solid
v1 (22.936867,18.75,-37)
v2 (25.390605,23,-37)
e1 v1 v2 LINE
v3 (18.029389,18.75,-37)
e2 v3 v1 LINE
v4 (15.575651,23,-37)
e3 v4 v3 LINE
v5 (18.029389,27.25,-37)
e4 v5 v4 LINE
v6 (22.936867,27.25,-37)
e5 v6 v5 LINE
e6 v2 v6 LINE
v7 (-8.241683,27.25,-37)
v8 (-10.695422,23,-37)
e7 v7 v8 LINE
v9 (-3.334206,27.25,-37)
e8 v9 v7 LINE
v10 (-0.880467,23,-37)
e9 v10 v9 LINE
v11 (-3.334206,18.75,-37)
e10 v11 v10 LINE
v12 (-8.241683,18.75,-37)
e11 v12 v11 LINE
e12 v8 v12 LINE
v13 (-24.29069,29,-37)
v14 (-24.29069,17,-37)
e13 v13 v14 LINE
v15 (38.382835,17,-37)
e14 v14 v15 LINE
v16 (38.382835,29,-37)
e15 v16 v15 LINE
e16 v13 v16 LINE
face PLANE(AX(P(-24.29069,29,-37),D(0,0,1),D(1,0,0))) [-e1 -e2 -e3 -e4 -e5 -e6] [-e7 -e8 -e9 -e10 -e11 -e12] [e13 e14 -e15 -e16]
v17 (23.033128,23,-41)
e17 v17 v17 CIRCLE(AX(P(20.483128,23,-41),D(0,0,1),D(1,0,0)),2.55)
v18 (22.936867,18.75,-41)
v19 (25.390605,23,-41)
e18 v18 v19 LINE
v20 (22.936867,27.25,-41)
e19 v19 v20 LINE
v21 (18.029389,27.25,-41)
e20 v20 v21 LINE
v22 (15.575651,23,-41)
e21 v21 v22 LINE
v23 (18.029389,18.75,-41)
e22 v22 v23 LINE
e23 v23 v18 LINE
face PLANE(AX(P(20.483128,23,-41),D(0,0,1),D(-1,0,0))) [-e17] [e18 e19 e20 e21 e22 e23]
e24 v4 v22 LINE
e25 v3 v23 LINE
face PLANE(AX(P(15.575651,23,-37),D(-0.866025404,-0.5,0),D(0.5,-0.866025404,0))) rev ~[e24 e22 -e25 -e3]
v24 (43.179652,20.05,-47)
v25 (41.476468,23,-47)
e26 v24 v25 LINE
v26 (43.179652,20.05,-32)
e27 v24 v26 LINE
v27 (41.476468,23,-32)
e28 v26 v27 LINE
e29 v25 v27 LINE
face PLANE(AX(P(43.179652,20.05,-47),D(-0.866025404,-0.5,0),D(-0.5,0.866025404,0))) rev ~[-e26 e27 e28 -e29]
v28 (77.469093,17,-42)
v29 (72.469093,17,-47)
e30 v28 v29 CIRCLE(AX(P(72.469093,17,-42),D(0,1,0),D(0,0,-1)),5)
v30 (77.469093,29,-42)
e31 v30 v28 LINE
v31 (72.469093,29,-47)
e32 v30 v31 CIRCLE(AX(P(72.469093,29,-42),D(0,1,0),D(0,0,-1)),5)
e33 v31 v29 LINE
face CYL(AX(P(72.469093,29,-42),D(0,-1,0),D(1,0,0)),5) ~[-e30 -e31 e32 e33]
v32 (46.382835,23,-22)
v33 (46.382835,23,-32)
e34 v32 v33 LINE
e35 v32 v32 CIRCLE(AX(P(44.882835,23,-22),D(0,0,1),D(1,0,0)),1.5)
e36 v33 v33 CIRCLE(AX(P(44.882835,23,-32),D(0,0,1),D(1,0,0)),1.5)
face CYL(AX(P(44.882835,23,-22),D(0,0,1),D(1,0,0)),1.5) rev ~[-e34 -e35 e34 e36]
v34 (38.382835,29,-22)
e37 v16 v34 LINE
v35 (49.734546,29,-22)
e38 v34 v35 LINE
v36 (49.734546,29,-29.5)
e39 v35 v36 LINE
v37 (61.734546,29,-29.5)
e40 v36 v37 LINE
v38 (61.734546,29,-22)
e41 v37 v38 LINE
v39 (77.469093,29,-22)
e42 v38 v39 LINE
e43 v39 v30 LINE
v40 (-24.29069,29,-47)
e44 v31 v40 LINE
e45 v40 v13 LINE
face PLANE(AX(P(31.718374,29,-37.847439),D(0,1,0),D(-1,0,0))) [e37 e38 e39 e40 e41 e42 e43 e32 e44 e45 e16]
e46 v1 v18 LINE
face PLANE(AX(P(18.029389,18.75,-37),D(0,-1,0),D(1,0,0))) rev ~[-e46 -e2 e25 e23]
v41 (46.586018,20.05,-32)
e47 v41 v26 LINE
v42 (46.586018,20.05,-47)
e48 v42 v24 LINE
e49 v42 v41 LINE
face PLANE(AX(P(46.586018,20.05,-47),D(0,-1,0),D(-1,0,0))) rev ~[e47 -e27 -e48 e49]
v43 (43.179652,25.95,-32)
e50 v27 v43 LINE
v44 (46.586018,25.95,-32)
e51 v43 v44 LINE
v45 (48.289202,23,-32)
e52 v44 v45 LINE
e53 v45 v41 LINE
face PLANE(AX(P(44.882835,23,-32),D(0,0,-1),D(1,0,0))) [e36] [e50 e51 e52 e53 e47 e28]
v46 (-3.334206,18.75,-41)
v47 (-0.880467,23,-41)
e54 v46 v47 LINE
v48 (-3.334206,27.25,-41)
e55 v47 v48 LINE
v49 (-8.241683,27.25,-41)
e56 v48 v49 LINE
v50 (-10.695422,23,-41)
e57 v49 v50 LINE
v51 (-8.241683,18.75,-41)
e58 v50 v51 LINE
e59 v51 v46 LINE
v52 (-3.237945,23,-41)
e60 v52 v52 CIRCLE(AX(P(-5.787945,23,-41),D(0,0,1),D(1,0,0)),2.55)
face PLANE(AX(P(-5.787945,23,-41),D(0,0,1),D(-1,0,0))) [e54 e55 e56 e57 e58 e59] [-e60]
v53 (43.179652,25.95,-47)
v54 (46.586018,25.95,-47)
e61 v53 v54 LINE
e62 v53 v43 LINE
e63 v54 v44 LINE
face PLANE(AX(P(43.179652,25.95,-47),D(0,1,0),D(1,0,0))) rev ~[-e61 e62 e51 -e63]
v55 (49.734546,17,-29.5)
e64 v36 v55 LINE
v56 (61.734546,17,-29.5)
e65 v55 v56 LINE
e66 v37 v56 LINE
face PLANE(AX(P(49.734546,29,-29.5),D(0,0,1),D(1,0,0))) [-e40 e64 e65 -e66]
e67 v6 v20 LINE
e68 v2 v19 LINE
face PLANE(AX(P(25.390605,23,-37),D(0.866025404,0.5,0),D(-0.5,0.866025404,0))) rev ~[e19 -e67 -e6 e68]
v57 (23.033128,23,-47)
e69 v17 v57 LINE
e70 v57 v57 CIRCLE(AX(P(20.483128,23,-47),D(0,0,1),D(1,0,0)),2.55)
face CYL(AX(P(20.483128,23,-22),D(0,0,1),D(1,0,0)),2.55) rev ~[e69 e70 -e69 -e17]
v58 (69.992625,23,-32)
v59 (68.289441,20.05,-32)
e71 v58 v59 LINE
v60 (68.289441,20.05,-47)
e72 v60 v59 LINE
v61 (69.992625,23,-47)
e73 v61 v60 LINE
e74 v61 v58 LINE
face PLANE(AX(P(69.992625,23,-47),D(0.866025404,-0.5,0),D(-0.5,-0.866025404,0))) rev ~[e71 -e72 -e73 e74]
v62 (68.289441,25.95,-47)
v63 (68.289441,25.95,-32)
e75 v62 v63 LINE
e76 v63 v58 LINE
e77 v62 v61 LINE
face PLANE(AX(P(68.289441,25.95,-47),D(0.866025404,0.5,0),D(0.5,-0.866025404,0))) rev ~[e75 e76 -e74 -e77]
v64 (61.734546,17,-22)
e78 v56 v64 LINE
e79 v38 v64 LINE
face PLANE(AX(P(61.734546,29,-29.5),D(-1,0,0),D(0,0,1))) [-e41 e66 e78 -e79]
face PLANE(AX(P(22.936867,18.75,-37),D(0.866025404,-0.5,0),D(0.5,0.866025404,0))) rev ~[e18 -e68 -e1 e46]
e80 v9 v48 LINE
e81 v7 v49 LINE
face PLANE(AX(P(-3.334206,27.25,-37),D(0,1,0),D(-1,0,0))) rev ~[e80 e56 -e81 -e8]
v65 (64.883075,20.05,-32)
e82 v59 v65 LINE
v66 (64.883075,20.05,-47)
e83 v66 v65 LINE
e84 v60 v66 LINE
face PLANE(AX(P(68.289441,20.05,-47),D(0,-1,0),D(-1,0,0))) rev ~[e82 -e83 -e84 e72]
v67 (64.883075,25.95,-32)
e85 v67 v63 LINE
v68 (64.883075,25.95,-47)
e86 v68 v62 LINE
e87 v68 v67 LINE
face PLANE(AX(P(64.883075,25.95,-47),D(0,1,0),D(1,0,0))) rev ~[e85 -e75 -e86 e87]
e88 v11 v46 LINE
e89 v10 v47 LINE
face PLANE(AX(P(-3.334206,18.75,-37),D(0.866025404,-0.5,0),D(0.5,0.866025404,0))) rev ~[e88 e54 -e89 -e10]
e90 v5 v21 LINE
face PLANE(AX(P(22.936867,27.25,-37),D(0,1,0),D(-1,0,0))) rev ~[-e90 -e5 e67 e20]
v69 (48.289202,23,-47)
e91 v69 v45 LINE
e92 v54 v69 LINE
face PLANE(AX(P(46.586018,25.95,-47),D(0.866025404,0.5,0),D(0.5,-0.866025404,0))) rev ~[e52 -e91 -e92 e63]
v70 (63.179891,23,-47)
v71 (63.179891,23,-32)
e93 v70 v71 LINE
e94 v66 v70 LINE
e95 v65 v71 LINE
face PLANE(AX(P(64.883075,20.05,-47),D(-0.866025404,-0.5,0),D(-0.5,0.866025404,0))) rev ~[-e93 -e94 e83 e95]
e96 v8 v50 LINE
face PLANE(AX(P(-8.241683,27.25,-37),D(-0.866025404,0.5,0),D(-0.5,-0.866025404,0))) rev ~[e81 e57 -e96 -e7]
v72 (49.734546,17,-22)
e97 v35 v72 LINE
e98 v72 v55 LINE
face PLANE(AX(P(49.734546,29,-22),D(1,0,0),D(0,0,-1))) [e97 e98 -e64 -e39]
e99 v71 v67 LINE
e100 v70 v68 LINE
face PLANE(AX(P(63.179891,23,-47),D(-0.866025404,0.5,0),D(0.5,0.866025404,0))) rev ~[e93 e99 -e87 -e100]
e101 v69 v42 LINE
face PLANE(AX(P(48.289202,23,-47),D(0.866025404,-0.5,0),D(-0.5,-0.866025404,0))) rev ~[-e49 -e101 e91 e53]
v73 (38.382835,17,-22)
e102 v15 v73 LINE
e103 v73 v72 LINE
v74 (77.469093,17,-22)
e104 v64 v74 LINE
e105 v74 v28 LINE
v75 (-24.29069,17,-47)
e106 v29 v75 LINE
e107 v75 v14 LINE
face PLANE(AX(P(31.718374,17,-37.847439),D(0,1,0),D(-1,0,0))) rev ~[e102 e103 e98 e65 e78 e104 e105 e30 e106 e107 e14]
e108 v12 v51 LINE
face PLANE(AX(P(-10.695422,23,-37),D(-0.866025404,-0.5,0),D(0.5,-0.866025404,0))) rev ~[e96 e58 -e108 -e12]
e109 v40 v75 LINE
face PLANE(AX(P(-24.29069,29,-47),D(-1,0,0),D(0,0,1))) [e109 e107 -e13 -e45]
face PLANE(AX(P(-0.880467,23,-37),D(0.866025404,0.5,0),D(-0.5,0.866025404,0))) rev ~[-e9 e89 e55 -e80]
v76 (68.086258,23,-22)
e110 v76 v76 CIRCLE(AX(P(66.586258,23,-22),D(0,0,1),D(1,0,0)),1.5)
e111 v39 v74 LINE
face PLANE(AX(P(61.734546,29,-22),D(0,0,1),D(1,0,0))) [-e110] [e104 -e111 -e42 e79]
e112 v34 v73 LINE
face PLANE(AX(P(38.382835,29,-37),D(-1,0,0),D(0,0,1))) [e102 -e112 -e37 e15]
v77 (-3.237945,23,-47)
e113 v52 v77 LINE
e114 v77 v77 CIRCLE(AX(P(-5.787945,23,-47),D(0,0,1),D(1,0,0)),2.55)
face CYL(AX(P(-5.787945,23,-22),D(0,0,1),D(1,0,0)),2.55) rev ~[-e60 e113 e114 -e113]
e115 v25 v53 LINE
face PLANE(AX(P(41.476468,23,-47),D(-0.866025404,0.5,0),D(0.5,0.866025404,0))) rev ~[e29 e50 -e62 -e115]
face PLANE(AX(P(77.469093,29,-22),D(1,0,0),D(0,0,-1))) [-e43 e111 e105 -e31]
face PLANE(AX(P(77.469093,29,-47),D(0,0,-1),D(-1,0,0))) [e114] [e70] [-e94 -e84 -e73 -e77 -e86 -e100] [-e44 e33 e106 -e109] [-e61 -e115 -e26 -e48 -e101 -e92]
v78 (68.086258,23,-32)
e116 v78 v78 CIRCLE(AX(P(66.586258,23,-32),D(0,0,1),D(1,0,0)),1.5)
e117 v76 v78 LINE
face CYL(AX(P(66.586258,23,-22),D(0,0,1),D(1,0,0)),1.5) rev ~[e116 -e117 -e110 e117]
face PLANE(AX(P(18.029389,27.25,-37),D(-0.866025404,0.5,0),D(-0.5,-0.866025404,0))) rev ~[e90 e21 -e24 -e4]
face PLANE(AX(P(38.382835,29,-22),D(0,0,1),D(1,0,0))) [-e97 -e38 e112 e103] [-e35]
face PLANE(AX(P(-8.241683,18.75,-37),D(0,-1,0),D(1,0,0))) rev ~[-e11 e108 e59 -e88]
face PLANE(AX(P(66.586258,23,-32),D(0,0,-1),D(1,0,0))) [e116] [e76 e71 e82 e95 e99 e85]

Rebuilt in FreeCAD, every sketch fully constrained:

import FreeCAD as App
import Part
import Sketcher
from FreeCAD import Vector
Q = App.Units.Quantity


def edges_at(feature, points):
    """Names of the edges that pass closest to the given points."""
    edges = feature.Shape.Edges
    near = lambda p: min(range(len(edges)), key=lambda i: edges[i].distToShape(Part.Vertex(*p))[0])
    return sorted({f"Edge{near(p) + 1}" for p in points})


def add_polygon(sketch, points):
    """Adds a closed chain of lines whose ends are joined by coincident constraints."""
    first, n = sketch.GeometryCount, len(points)
    for a, b in zip(points, points[1:] + points[:1]):
        sketch.addGeometry(Part.LineSegment(App.Vector(*a, 0), App.Vector(*b, 0)), False)
    for i in range(n):
        sketch.addConstraint(Sketcher.Constraint("Coincident", first + i, 2, first + (i + 1) % n, 1))

doc = App.newDocument("Part")
body = doc.addObject("PartDesign::Body", "Body")

sketch1 = body.newObject("Sketcher::SketchObject", "Sketch")
sketch1.AttachmentSupport = (doc.getObject("XZ_Plane"), [""])
sketch1.MapMode = "FlatFace"
add_polygon(sketch1, [(77, -25), (77, 0), (62, 0), (62, -8), (50, -8), (50, 0), (38, 0), (38, -15), (-24, -15), (-24, -25)])
sketch1.addConstraint([
    Sketcher.Constraint("Vertical", 0),
    Sketcher.Constraint("Horizontal", 1),
    Sketcher.Constraint("Vertical", 2),
    Sketcher.Constraint("Horizontal", 3),
    Sketcher.Constraint("Vertical", 4),
    Sketcher.Constraint("Horizontal", 5),
    Sketcher.Constraint("Vertical", 6),
    Sketcher.Constraint("Horizontal", 7),
    Sketcher.Constraint("Vertical", 8),
    Sketcher.Constraint("Horizontal", 9),
    Sketcher.Constraint("PointOnObject", 0, 2, -1),
    Sketcher.Constraint("PointOnObject", 4, 2, -1),
    Sketcher.Constraint("DistanceX", 3, 2, 3, 1, 12.0),
    Sketcher.Constraint("DistanceY", 0, 1, 0, 2, 25.0),
    Sketcher.Constraint("DistanceY", 6, 2, 6, 1, 15.0),
    Sketcher.Constraint("DistanceY", 2, 2, 2, 1, 7.5),
    Sketcher.Constraint("DistanceX", 5, 2, 5, 1, 11.351712),
    Sketcher.Constraint("DistanceX", 1, 2, 1, 1, 15.734547),
    Sketcher.Constraint("DistanceX", 7, 2, 7, 1, 62.673525),
    Sketcher.Constraint("DistanceX", 7, 2, -1, 1, 24.29069),
])
pad1 = body.newObject("PartDesign::Pad", "Pad")
pad1.Profile = sketch1
pad1.Length = 12

sketch2 = body.newObject("Sketcher::SketchObject", "Sketch001")
sketch2.AttachmentSupport = (doc.getObject("XY_Plane"), [""])
sketch2.MapMode = "FlatFace"
sketch2.addGeometry([
    Part.Circle(Vector(44.9, -6, 0), Vector(0, 0, 1), 1.5),
    Part.Circle(Vector(66.6, -6, 0), Vector(0, 0, 1), 1.5),
], False)
sketch2.addConstraint([
    Sketcher.Constraint("Equal", 0, 1),
    Sketcher.Constraint("Horizontal", 0, 3, 1, 3),
    Sketcher.Constraint("Diameter", 0, 3.0),
    Sketcher.Constraint("DistanceY", 0, 3, -1, 1, 6.0),
    Sketcher.Constraint("DistanceX", -1, 1, 1, 3, 66.586258),
    Sketcher.Constraint("DistanceX", -1, 1, 0, 3, 44.882835),
])
pocket1 = body.newObject("PartDesign::Pocket", "Pocket")
pocket1.Profile = sketch2
pocket1.Type = "ThroughAll"

sketch3 = body.newObject("Sketcher::SketchObject", "Sketch002")
sketch3.AttachmentSupport = (doc.getObject("XY_Plane"), [""])
sketch3.MapMode = "FlatFace"
sketch3.addGeometry([
    Part.Circle(Vector(-5.8, -6, 0), Vector(0, 0, 1), 2.5),
    Part.Circle(Vector(20.5, -6, 0), Vector(0, 0, 1), 2.5),
], False)
sketch3.addConstraint([
    Sketcher.Constraint("Equal", 0, 1),
    Sketcher.Constraint("Horizontal", 0, 3, 1, 3),
    Sketcher.Constraint("Diameter", 0, 5.1),
    Sketcher.Constraint("DistanceY", 0, 3, -1, 1, 6.0),
    Sketcher.Constraint("DistanceX", -1, 1, 1, 3, 20.483128),
    Sketcher.Constraint("DistanceX", 0, 3, -1, 1, 5.787945),
])
pocket2 = body.newObject("PartDesign::Pocket", "Pocket001")
pocket2.Profile = sketch3
pocket2.Type = "ThroughAll"

sketch4 = body.newObject("Sketcher::SketchObject", "Sketch003")
sketch4.AttachmentSupport = (doc.getObject("XY_Plane"), [""])
sketch4.MapMode = "FlatFace"
sketch4.AttachmentOffset = App.Placement(Vector(0, 0, -25), App.Rotation())
add_polygon(sketch4, [(46.6, -8.9), (43.2, -8.9), (41.5, -6), (43.2, -3), (46.6, -3), (48.3, -6)])
add_polygon(sketch4, [(68.3, -8.9), (64.9, -8.9), (63.2, -6), (64.9, -3), (68.3, -3), (70, -6)])
sketch4.addConstraint([
    Sketcher.Constraint("Horizontal", 0),
    Sketcher.Constraint("Horizontal", 3),
    Sketcher.Constraint("Horizontal", 6),
    Sketcher.Constraint("Horizontal", 9),
    Sketcher.Constraint("Parallel", 1, 4),
    Sketcher.Constraint("Parallel", 2, 5),
    Sketcher.Constraint("Parallel", 4, 7),
    Sketcher.Constraint("Parallel", 5, 8),
    Sketcher.Constraint("Parallel", 7, 10),
    Sketcher.Constraint("Parallel", 8, 11),
    Sketcher.Constraint("Horizontal", 1, 2, 4, 2),
    Sketcher.Constraint("Horizontal", 5, 2, 6, 2),
    Sketcher.Constraint("Horizontal", 4, 2, 7, 2),
    Sketcher.Constraint("Horizontal", 3, 2, 8, 2),
    Sketcher.Constraint("Horizontal", 7, 2, 10, 2),
    Sketcher.Constraint("Vertical", 0, 2, 2, 2),
    Sketcher.Constraint("Vertical", 3, 2, 5, 2),
    Sketcher.Constraint("Equal", 3, 6),
    Sketcher.Constraint("Angle", 1, Q("120 deg")),
    Sketcher.Constraint("DistanceY", 1, 2, -1, 1, 6.0),
    Sketcher.Constraint("DistanceY", 0, 2, 2, 2, 5.9),
    Sketcher.Constraint("DistanceX", -1, 1, 4, 2, 48.289202),
    Sketcher.Constraint("DistanceX", 0, 2, 0, 1, 3.406367),
    Sketcher.Constraint("DistanceX", -1, 1, 7, 2, 63.179891),
])
pocket3 = body.newObject("PartDesign::Pocket", "Pocket002")
pocket3.Profile = sketch4
pocket3.Length = 15
pocket3.Reversed = True

sketch5 = body.newObject("Sketcher::SketchObject", "Sketch004")
sketch5.AttachmentSupport = (doc.getObject("XY_Plane"), [""])
sketch5.MapMode = "FlatFace"
sketch5.AttachmentOffset = App.Placement(Vector(0, 0, -15), App.Rotation())
add_polygon(sketch5, [(22.9, -10.2), (25.4, -6), (22.9, -1.8), (18, -1.8), (15.6, -6), (18, -10.2)])
add_polygon(sketch5, [(-3.3, -10.2), (-0.9, -6), (-3.3, -1.8), (-8.2, -1.8), (-10.7, -6), (-8.2, -10.2)])
sketch5.addConstraint([
    Sketcher.Constraint("Horizontal", 2),
    Sketcher.Constraint("Horizontal", 5),
    Sketcher.Constraint("Horizontal", 8),
    Sketcher.Constraint("Horizontal", 11),
    Sketcher.Constraint("Parallel", 0, 3),
    Sketcher.Constraint("Parallel", 1, 4),
    Sketcher.Constraint("Parallel", 3, 6),
    Sketcher.Constraint("Parallel", 4, 7),
    Sketcher.Constraint("Parallel", 6, 9),
    Sketcher.Constraint("Parallel", 7, 10),
    Sketcher.Constraint("Horizontal", 0, 2, 3, 2),
    Sketcher.Constraint("Horizontal", 3, 2, 6, 2),
    Sketcher.Constraint("Horizontal", 2, 2, 7, 2),
    Sketcher.Constraint("Horizontal", 6, 2, 9, 2),
    Sketcher.Constraint("Horizontal", 5, 2, 10, 2),
    Sketcher.Constraint("Vertical", 2, 2, 4, 2),
    Sketcher.Constraint("Vertical", 1, 2, 5, 2),
    Sketcher.Constraint("Equal", 5, 8),
    Sketcher.Constraint("Angle", 0, Q("60 deg")),
    Sketcher.Constraint("DistanceY", 0, 2, -1, 1, 6.0),
    Sketcher.Constraint("DistanceY", 4, 2, 2, 2, 8.5),
    Sketcher.Constraint("DistanceX", 2, 2, 2, 1, 4.907477),
    Sketcher.Constraint("DistanceX", -1, 1, 2, 2, 18.029389),
    Sketcher.Constraint("DistanceX", 9, 2, -1, 1, 10.695422),
])
pocket4 = body.newObject("PartDesign::Pocket", "Pocket003")
pocket4.Profile = sketch5
pocket4.Length = 4
doc.recompute()

fillet = body.newObject("PartDesign::Fillet", "Fillet")
fillet.Base = (pocket4, edges_at(pocket4, [(77.469, -6, -25)]))
fillet.Radius = 5
body2 = doc.addObject("PartDesign::Body", "Body001")
doc.recompute()

body.Placement = App.Placement(Vector(0, 29, -22), App.Rotation(Vector(0, 0, 1), 0))
boolean = body2.newObject("PartDesign::Boolean", "Boolean")
boolean.Type = "Fuse"
boolean.addObjects([body])

doc.recompute()
